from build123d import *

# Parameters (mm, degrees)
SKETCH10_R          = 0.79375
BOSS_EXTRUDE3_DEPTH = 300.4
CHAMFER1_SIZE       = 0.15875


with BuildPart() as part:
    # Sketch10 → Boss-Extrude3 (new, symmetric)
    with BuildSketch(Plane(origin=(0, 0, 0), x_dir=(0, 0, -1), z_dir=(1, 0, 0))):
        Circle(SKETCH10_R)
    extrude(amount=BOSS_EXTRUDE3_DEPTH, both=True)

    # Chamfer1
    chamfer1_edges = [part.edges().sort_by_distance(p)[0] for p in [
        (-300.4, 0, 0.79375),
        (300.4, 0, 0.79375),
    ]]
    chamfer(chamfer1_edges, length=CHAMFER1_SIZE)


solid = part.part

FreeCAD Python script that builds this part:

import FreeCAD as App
import Part
import Sketcher
from FreeCAD import Vector
Q = App.Units.Quantity


def edges_at(feature, points):
    """Names of the edges that pass closest to the given points."""
    edges = feature.Shape.Edges
    near = lambda p: min(range(len(edges)), key=lambda i: edges[i].distToShape(Part.Vertex(*p))[0])
    return sorted({f"Edge{near(p) + 1}" for p in points})

doc = App.newDocument("Part")
body = doc.addObject("PartDesign::Body", "Body")

sketch1 = body.newObject("Sketcher::SketchObject", "Sketch")
sketch1.AttachmentSupport = (doc.getObject("YZ_Plane"), [""])
sketch1.MapMode = "FlatFace"
sketch1.addGeometry(Part.Circle(Vector(0, 0, 0), Vector(0, 0, 1), 0.79375), False)
sketch1.addConstraint(Sketcher.Constraint("Coincident", 0, 3, -1, 1))
sketch1.addConstraint(Sketcher.Constraint("Diameter", 0, Q("1.5875 mm")))
pad1 = body.newObject("PartDesign::Pad", "Pad")
pad1.Profile = sketch1
pad1.Length = 600.8
pad1.Midplane = True
doc.recompute()

chamfer = body.newObject("PartDesign::Chamfer", "Chamfer")
chamfer.Base = (pad1, edges_at(pad1, [(-300.4, 0, 0.794), (300.4, 0, 0.794)]))
chamfer.Size = 0.15875

doc.recompute()
